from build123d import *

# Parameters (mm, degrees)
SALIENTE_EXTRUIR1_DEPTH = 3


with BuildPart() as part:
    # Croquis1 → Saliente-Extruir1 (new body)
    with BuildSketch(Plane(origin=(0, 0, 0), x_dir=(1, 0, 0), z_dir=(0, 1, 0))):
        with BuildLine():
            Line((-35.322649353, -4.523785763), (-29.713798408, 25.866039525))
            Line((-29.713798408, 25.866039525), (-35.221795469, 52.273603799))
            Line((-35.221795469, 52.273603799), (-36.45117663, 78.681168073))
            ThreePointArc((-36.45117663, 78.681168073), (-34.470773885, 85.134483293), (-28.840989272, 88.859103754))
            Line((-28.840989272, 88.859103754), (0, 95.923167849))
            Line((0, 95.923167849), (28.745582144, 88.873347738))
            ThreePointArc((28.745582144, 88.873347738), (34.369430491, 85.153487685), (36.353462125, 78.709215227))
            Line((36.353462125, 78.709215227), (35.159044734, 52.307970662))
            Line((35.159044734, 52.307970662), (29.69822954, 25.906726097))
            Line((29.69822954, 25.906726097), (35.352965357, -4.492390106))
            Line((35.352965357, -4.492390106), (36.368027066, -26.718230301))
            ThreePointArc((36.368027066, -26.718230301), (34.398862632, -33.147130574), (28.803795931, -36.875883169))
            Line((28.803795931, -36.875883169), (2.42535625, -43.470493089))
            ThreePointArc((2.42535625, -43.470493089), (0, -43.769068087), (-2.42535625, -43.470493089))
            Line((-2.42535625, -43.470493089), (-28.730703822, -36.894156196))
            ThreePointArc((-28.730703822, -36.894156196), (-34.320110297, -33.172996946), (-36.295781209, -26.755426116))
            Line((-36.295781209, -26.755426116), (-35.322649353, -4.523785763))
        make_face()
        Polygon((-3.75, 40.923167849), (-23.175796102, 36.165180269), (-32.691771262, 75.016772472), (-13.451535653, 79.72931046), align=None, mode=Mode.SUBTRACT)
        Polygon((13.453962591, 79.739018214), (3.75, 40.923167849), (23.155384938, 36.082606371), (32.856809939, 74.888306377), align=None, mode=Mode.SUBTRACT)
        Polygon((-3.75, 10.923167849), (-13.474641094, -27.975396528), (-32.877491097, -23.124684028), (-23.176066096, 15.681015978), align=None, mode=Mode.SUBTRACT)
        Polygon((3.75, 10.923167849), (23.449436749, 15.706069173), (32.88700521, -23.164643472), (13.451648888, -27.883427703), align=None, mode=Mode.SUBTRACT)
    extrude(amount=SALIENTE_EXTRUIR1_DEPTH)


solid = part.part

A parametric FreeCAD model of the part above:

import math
import FreeCAD as App
import Part
import Sketcher
Q = App.Units.Quantity


def add_polygon(sketch, points):
    """Adds a closed chain of lines whose ends are joined by coincident constraints."""
    first, n = sketch.GeometryCount, len(points)
    for a, b in zip(points, points[1:] + points[:1]):
        sketch.addGeometry(Part.LineSegment(App.Vector(*a, 0), App.Vector(*b, 0)), False)
    for i in range(n):
        sketch.addConstraint(Sketcher.Constraint("Coincident", first + i, 2, first + (i + 1) % n, 1))

doc = App.newDocument("Part")
body = doc.addObject("PartDesign::Body", "Body")

sketch1 = body.newObject("Sketcher::SketchObject", "Sketch")
sketch1.AttachmentSupport = (doc.getObject("XZ_Plane"), [""])
sketch1.MapMode = "FlatFace"
sketch1.addGeometry(Part.LineSegment(App.Vector(-29.713798, -25.86604, 0), App.Vector(-35.322649, 4.523786, 0)), False)
sketch1.addGeometry(Part.LineSegment(App.Vector(-35.322649, 4.523786, 0), App.Vector(-36.295781, 26.755426, 0)), False)
sketch1.addGeometry(Part.ArcOfCircle(Part.Circle(App.Vector(-26.305348, 27.192731, 0), App.Vector(0, 0, 1), 10), math.radians(104.036243), math.radians(182.506373)), False)
sketch1.addGeometry(Part.LineSegment(App.Vector(-28.730704, 36.894156, 0), App.Vector(-2.425356, 43.470493, 0)), False)
sketch1.addGeometry(Part.ArcOfCircle(Part.Circle(App.Vector(0, 33.769068, 0), App.Vector(0, 0, 1), 10), math.radians(75.963757), math.radians(104.036243)), False)
sketch1.addGeometry(Part.LineSegment(App.Vector(2.425356, 43.470493, 0), App.Vector(28.803796, 36.875883, 0)), False)
sketch1.addGeometry(Part.ArcOfCircle(Part.Circle(App.Vector(26.37844, 27.174458, 0), App.Vector(0, 0, 1), 10), math.radians(-2.614901), math.radians(75.963757)), False)
sketch1.addGeometry(Part.LineSegment(App.Vector(36.368027, 26.71823, 0), App.Vector(35.352965, 4.49239, 0)), False)
sketch1.addGeometry(Part.LineSegment(App.Vector(35.352965, 4.49239, 0), App.Vector(29.69823, -25.906726, 0)), False)
sketch1.addGeometry(Part.LineSegment(App.Vector(29.69823, -25.906726, 0), App.Vector(35.159045, -52.307971, 0)), False)
sketch1.addGeometry(Part.LineSegment(App.Vector(35.159045, -52.307971, 0), App.Vector(36.353462, -78.709215, 0)), False)
sketch1.addGeometry(Part.ArcOfCircle(Part.Circle(App.Vector(26.36368, -79.161162, 0), App.Vector(0, 0, 1), 10), math.radians(-76.220251), math.radians(2.590349)), False)
sketch1.addGeometry(Part.LineSegment(App.Vector(28.745582, -88.873348, 0), App.Vector(0, -95.923168, 0)), False)
sketch1.addGeometry(Part.LineSegment(App.Vector(0, -95.923168, 0), App.Vector(-28.840989, -88.859104, 0)), False)
sketch1.addGeometry(Part.ArcOfCircle(Part.Circle(App.Vector(-26.461995, -79.146206, 0), App.Vector(0, 0, 1), 10), math.radians(177.334569), math.radians(256.237407)), False)
sketch1.addGeometry(Part.LineSegment(App.Vector(-36.451177, -78.681168, 0), App.Vector(-35.221795, -52.273604, 0)), False)
sketch1.addGeometry(Part.LineSegment(App.Vector(-35.221795, -52.273604, 0), App.Vector(-29.713798, -25.86604, 0)), False)
add_polygon(sketch1, [(3.75, -10.923168), (23.449437, -15.706069), (32.887005, 23.164643), (13.451649, 27.883428)])
add_polygon(sketch1, [(-3.75, -10.923168), (-13.474641, 27.975397), (-32.877491, 23.124684), (-23.176066, -15.681016)])
add_polygon(sketch1, [(13.453963, -79.739018), (32.85681, -74.888306), (23.155385, -36.082606), (3.75, -40.923168)])
add_polygon(sketch1, [(-3.75, -40.923168), (-23.175796, -36.16518), (-32.691771, -75.016772), (-13.451536, -79.72931)])
sketch1.addConstraint(Sketcher.Constraint("Coincident", 0, 2, 1, 1))
sketch1.addConstraint(Sketcher.Constraint("Tangent", 1, 2, 2, 2))
sketch1.addConstraint(Sketcher.Constraint("Tangent", 2, 1, 3, 1))
sketch1.addConstraint(Sketcher.Constraint("Tangent", 3, 2, 4, 2))
sketch1.addConstraint(Sketcher.Constraint("Tangent", 4, 1, 5, 1))
sketch1.addConstraint(Sketcher.Constraint("Tangent", 5, 2, 6, 2))
sketch1.addConstraint(Sketcher.Constraint("Tangent", 6, 1, 7, 1))
sketch1.addConstraint(Sketcher.Constraint("Coincident", 7, 2, 8, 1))
sketch1.addConstraint(Sketcher.Constraint("Coincident", 8, 2, 9, 1))
sketch1.addConstraint(Sketcher.Constraint("Coincident", 9, 2, 10, 1))
sketch1.addConstraint(Sketcher.Constraint("Tangent", 10, 2, 11, 2))
sketch1.addConstraint(Sketcher.Constraint("Tangent", 11, 1, 12, 1))
sketch1.addConstraint(Sketcher.Constraint("Coincident", 12, 2, 13, 1))
sketch1.addConstraint(Sketcher.Constraint("Tangent", 13, 2, 14, 2))
sketch1.addConstraint(Sketcher.Constraint("Tangent", 14, 1, 15, 1))
sketch1.addConstraint(Sketcher.Constraint("Coincident", 15, 2, 16, 1))
sketch1.addConstraint(Sketcher.Constraint("Coincident", 16, 2, 0, 1))
sketch1.addConstraint(Sketcher.Constraint("Equal", 2, 4))
sketch1.addConstraint(Sketcher.Constraint("Equal", 4, 6))
sketch1.addConstraint(Sketcher.Constraint("Equal", 6, 11))
sketch1.addConstraint(Sketcher.Constraint("Equal", 11, 14))
sketch1.addConstraint(Sketcher.Constraint("Symmetric", 3, 2, 4, 1, -2))
sketch1.addConstraint(Sketcher.Constraint("Symmetric", 20, 2, 24, 2, -2))
sketch1.addConstraint(Sketcher.Constraint("Symmetric", 27, 2, 32, 2, -2))
sketch1.addConstraint(Sketcher.Constraint("PointOnObject", 12, 2, -2))
sketch1.addConstraint(Sketcher.Constraint("Perpendicular", 17, 18))
sketch1.addConstraint(Sketcher.Constraint("Perpendicular", 18, 19))
sketch1.addConstraint(Sketcher.Constraint("Perpendicular", 5, 20))
sketch1.addConstraint(Sketcher.Constraint("Perpendicular", 3, 21))
sketch1.addConstraint(Sketcher.Constraint("Perpendicular", 21, 22))
sketch1.addConstraint(Sketcher.Constraint("Perpendicular", 22, 23))
sketch1.addConstraint(Sketcher.Constraint("Perpendicular", 23, 25))
sketch1.addConstraint(Sketcher.Constraint("Perpendicular", 25, 26))
sketch1.addConstraint(Sketcher.Constraint("Parallel", 26, 28))
sketch1.addConstraint(Sketcher.Constraint("Parallel", 13, 29))
sketch1.addConstraint(Sketcher.Constraint("Perpendicular", 29, 30))
sketch1.addConstraint(Sketcher.Constraint("Perpendicular", 30, 31))
sketch1.addConstraint(Sketcher.Constraint("Parallel", 20, 32))
sketch1.addConstraint(Sketcher.Constraint("Vertical", 20, 2, 27, 2))
sketch1.addConstraint(Sketcher.Constraint("Equal", 19, 22))
sketch1.addConstraint(Sketcher.Constraint("Equal", 18, 23))
sketch1.addConstraint(Sketcher.Constraint("Equal", 23, 26))
sketch1.addConstraint(Sketcher.Constraint("Equal", 22, 27))
sketch1.addConstraint(Sketcher.Constraint("Equal", 27, 29))
sketch1.addConstraint(Sketcher.Constraint("Equal", 26, 30))
sketch1.addConstraint(Sketcher.Constraint("Radius", 2, Q("10 mm")))
sketch1.addConstraint(Sketcher.Constraint("Distance", 18, Q("40 mm")))
sketch1.addConstraint(Sketcher.Constraint("Distance", 19, Q("20 mm")))
sketch1.addConstraint(Sketcher.Constraint("DistanceY", 27, 2, 20, 2, Q("30 mm")))
sketch1.addConstraint(Sketcher.Constraint("DistanceX", 24, 2, 20, 2, Q("7.5 mm")))
sketch1.addConstraint(Sketcher.Constraint("DistanceY", 12, 2, 14, 1, Q("17.242 mm")))
sketch1.addConstraint(Sketcher.Constraint("DistanceX", 15, 2, 29, 2, Q("12.045999 mm")))
sketch1.addConstraint(Sketcher.Constraint("DistanceX", 16, 2, -1, 1, Q("29.713798 mm")))
sketch1.addConstraint(Sketcher.Constraint("DistanceX", 0, 2, 2, 3, Q("9.017302 mm")))
sketch1.addConstraint(Sketcher.Constraint("DistanceY", 6, 3, 2, 1, Q("9.719698 mm")))
sketch1.addConstraint(Sketcher.Constraint("DistanceY", 9, 2, 6, 1, Q("79.026201 mm")))
sketch1.addConstraint(Sketcher.Constraint("DistanceX", 11, 3, 11, 1, Q("2.381902 mm")))
sketch1.addConstraint(Sketcher.Constraint("DistanceY", 13, 2, 14, 3, Q("9.712898 mm")))
sketch1.addConstraint(Sketcher.Constraint("DistanceX", 15, 2, 14, 3, Q("8.7598 mm")))
sketch1.addConstraint(Sketcher.Constraint("DistanceY", 9, 2, 17, 2, Q("36.601901 mm")))
sketch1.addConstraint(Sketcher.Constraint("DistanceY", 17, 2, 20, 2, Q("4.782901 mm")))
sketch1.addConstraint(Sketcher.Constraint("DistanceY", 0, 2, 22, 2, Q("18.600898 mm")))
sketch1.addConstraint(Sketcher.Constraint("DistanceY", 23, 2, 0, 2, Q("20.204802 mm")))
sketch1.addConstraint(Sketcher.Constraint("DistanceX", 28, 2, 10, 2, Q("22.8995 mm")))
sketch1.addConstraint(Sketcher.Constraint("Distance", 1, Q("22.252928 mm")))
sketch1.addConstraint(Sketcher.Constraint("Distance", 3, Q("27.114932 mm")))
sketch1.addConstraint(Sketcher.Constraint("Distance", 8, Q("30.920581 mm")))
sketch1.addConstraint(Sketcher.Constraint("Distance", 10, Q("26.428249 mm")))
sketch1.addConstraint(Sketcher.Constraint("Distance", 12, Q("29.59744 mm")))
sketch1.addConstraint(Sketcher.Constraint("Distance", 16, Q("26.975869 mm")))
sketch1.addConstraint(Sketcher.Constraint("DistanceY", -1, 1, 2, 3, Q("27.192731 mm")))
sketch1.addConstraint(Sketcher.Constraint("DistanceY", -1, 1, 6, 1, Q("26.71823 mm")))
sketch1.addConstraint(Sketcher.Constraint("DistanceY", -1, 1, 7, 2, Q("4.49239 mm")))
sketch1.addConstraint(Sketcher.Constraint("DistanceX", -1, 1, 8, 2, Q("29.69823 mm")))
sketch1.addConstraint(Sketcher.Constraint("DistanceY", 14, 1, -1, 1, Q("78.681168 mm")))
pad1 = body.newObject("PartDesign::Pad", "Pad")
pad1.Profile = sketch1
pad1.Length = 3
pad1.Reversed = True

doc.recompute()
